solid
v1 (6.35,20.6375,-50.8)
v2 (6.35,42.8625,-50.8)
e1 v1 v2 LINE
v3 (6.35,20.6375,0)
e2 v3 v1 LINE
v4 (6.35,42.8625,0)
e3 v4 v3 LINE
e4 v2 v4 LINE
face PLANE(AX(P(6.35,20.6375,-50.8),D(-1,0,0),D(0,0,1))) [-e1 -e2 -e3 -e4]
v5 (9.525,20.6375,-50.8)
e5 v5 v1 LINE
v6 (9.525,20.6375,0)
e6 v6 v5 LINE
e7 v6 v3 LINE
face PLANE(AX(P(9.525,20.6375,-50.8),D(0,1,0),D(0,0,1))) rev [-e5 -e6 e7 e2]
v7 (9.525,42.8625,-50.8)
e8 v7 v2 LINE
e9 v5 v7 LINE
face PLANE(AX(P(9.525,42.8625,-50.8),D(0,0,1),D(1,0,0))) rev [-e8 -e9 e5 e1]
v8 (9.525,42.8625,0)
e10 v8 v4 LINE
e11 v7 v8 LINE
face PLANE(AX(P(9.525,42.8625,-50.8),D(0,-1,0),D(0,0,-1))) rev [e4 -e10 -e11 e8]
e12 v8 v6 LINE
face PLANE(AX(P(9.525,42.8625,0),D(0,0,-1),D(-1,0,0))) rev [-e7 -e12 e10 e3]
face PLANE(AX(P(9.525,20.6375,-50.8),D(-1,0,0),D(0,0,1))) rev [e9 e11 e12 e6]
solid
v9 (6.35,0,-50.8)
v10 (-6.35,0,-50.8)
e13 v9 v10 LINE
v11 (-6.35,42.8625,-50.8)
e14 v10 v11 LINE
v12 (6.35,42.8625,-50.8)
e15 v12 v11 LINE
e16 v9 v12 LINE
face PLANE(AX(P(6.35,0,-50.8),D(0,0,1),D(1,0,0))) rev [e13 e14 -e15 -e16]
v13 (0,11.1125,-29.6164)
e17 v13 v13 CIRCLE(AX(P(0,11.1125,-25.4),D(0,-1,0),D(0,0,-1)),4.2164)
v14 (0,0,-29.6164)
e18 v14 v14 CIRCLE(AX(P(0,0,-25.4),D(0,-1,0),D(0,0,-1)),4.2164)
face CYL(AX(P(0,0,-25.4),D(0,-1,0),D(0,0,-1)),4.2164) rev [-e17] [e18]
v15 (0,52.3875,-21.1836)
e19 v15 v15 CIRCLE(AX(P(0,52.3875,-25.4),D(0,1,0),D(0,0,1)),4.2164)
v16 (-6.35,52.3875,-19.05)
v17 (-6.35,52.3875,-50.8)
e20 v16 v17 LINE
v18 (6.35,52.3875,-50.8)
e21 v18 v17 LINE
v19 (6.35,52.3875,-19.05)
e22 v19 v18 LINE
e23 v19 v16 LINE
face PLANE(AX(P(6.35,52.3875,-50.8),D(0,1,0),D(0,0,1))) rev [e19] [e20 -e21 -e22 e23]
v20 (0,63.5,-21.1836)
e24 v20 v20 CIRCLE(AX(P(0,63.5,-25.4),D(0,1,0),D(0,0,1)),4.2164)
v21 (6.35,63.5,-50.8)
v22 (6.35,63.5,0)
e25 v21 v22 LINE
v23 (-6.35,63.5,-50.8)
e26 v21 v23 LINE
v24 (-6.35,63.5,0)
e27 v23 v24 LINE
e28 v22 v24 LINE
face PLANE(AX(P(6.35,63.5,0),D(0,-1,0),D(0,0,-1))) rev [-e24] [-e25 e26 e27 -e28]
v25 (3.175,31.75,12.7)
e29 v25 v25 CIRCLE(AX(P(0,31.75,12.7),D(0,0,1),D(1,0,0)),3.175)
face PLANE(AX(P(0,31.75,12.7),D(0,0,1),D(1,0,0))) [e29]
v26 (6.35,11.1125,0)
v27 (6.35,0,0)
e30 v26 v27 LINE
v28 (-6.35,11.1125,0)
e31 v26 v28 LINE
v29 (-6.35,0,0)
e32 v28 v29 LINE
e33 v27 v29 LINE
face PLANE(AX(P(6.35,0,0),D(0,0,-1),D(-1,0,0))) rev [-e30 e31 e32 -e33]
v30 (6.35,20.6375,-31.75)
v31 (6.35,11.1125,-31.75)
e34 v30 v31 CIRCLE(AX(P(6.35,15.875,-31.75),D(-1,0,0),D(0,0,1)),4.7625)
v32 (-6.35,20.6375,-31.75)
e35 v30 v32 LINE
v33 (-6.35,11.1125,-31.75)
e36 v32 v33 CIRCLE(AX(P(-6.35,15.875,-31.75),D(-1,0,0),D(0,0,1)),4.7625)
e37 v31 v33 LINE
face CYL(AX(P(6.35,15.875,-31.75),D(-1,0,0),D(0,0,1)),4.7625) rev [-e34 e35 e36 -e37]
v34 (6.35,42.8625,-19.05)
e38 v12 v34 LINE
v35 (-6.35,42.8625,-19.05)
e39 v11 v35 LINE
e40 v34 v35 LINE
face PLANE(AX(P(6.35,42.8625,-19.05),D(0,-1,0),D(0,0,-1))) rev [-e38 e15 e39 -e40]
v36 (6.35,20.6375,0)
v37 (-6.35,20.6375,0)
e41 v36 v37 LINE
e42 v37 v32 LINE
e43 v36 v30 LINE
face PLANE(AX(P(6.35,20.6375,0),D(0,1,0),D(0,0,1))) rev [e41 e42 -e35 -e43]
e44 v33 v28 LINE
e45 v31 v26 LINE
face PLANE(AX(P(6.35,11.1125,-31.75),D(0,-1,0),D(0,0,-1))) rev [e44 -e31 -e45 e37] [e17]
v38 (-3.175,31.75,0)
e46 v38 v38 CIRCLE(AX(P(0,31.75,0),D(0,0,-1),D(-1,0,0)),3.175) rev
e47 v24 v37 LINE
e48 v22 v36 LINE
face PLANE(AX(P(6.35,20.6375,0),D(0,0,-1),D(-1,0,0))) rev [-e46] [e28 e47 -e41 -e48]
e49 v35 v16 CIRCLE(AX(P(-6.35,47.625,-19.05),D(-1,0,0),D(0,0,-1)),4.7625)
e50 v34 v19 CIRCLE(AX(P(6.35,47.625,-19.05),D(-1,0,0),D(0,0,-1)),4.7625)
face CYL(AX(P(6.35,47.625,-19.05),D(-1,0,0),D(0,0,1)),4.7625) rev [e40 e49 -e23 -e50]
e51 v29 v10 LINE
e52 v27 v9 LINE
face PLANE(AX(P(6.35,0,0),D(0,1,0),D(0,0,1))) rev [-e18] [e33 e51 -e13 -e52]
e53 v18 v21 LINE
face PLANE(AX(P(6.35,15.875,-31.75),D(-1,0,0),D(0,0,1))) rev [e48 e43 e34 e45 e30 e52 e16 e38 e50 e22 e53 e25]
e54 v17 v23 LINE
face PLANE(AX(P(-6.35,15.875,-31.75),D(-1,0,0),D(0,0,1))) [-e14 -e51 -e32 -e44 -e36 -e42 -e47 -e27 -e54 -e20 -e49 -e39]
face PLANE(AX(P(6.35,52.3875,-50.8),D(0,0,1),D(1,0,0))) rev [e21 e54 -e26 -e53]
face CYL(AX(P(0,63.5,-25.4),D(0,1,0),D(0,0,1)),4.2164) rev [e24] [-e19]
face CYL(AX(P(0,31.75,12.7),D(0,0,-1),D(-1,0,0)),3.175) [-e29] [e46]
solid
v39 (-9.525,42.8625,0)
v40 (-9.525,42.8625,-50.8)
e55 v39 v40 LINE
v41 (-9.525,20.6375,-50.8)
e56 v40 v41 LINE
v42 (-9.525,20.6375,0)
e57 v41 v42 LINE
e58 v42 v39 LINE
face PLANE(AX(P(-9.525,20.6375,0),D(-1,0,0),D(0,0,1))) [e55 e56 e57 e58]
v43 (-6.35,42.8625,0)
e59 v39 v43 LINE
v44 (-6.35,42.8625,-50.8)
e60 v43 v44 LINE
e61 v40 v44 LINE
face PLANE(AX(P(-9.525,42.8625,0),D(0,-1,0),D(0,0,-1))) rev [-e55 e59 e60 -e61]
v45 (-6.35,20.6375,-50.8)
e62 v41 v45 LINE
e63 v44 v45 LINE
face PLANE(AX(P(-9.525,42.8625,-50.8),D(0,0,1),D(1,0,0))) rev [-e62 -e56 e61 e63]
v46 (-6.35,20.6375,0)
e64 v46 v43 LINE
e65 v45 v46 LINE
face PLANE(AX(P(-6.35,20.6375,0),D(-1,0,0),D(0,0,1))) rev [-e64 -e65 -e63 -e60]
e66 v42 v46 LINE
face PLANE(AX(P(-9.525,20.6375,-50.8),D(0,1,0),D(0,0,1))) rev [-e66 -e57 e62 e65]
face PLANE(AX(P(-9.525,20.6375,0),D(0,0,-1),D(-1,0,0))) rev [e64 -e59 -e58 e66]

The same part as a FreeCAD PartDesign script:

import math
import FreeCAD as App
import Part
import Sketcher

V = App.Vector
Q = App.Units.Quantity


def add_polygon(sketch, points):
    """Adds a closed chain of lines whose ends are joined by coincident constraints."""
    first, n = sketch.GeometryCount, len(points)
    for a, b in zip(points, points[1:] + points[:1]):
        sketch.addGeometry(Part.LineSegment(App.Vector(*a, 0), App.Vector(*b, 0)), False)
    for i in range(n):
        sketch.addConstraint(Sketcher.Constraint("Coincident", first + i, 2, first + (i + 1) % n, 1))

doc = App.newDocument("Part")
body = doc.addObject("PartDesign::Body", "Body")

# Sketch on YZ plane
sketch1 = doc.addObject("Sketcher::SketchObject", "Sketch")
body.addObject(sketch1)
sketch1.AttachmentSupport = (doc.YZ_Plane, [""])
sketch1.MapMode = "FlatFace"
sketch1.addGeometry([
    Part.LineSegment(V(52.4, -19.1, 0), V(52.4, -50.8, 0)),  # 0
    Part.LineSegment(V(52.4, -50.8, 0), V(63.5, -50.8, 0)),  # 1
    Part.LineSegment(V(63.5, -50.8, 0), V(63.5, 0, 0)),  # 2
    Part.LineSegment(V(63.5, 0, 0), V(20.6, 0, 0)),  # 3
    Part.LineSegment(V(20.6, 0, 0), V(20.6, -31.8, 0)),  # 4
    Part.ArcOfCircle(Part.Circle(V(15.9, -31.8, 0), V(0, 0, 1), 4.8), math.radians(180), math.radians(360)),  # 5
    Part.LineSegment(V(11.1, -31.8, 0), V(11.1, 0, 0)),  # 6
    Part.LineSegment(V(11.1, 0, 0), V(0, 0, 0)),  # 7
    Part.LineSegment(V(0, 0, 0), V(0, -50.8, 0)),  # 8
    Part.LineSegment(V(0, -50.8, 0), V(42.9, -50.8, 0)),  # 9
    Part.LineSegment(V(42.9, -50.8, 0), V(42.9, -19.1, 0)),  # 10
    Part.ArcOfCircle(Part.Circle(V(47.6, -19.1, 0), V(0, 0, 1), 4.8), math.radians(0), math.radians(180)),  # 11
], False)
sketch1.addConstraint([
    Sketcher.Constraint("Coincident", 0, 2, 1, 1),
    Sketcher.Constraint("Coincident", 1, 2, 2, 1),
    Sketcher.Constraint("Coincident", 2, 2, 3, 1),
    Sketcher.Constraint("Coincident", 3, 2, 4, 1),
    Sketcher.Constraint("Tangent", 4, 2, 5, 2),
    Sketcher.Constraint("Tangent", 5, 1, 6, 1),
    Sketcher.Constraint("Coincident", 6, 2, 7, 1),
    Sketcher.Constraint("Coincident", 7, 2, 8, 1),
    Sketcher.Constraint("Coincident", 8, 2, 9, 1),
    Sketcher.Constraint("Coincident", 9, 2, 10, 1),
    Sketcher.Constraint("Tangent", 10, 2, 11, 2),
    Sketcher.Constraint("Tangent", 11, 1, 0, 1),
    Sketcher.Constraint("Vertical", 0),
    Sketcher.Constraint("Horizontal", 1),
    Sketcher.Constraint("Vertical", 2),
    Sketcher.Constraint("Horizontal", 3),
    Sketcher.Constraint("Vertical", 4),
    Sketcher.Constraint("Vertical", 6),
    Sketcher.Constraint("Horizontal", 7),
    Sketcher.Constraint("Vertical", 8),
    Sketcher.Constraint("Horizontal", 9),
    Sketcher.Constraint("Vertical", 10),
    Sketcher.Constraint("Coincident", 7, 2, -1, 1),
    Sketcher.Constraint("Equal", 5, 11),
    Sketcher.Constraint("PointOnObject", 2, 2, -1),
    Sketcher.Constraint("Horizontal", 1, 2, 8, 2),
    Sketcher.Constraint("Equal", 1, 7),
    Sketcher.Constraint("Equal", 0, 4),
    Sketcher.Constraint("DistanceY", 2, 1, 2, 2, Q("2 in")),
    Sketcher.Constraint("Radius", 5, Q("0.1875 in")),
    Sketcher.Constraint("DistanceY", 0, 2, 0, 1, Q("1.25 in")),
    Sketcher.Constraint("DistanceX", -1, 1, 1, 2, Q("2.5 in")),
    Sketcher.Constraint("DistanceX", 1, 1, 1, 2, Q("0.4375 in")),
])
pad1 = doc.addObject("PartDesign::Pad", "Pad")
body.addObject(pad1)
pad1.Profile = sketch1
pad1.Length = Q("0.5 in")
pad1.Midplane = True

# Sketch on YZ plane
sketch2 = doc.addObject("Sketcher::SketchObject", "Sketch001")
body.addObject(sketch2)
sketch2.AttachmentSupport = (doc.YZ_Plane, [""])
sketch2.MapMode = "FlatFace"
add_polygon(sketch2, [(52.4, -25.4), (63.5, -25.4), (63.5, -21.2), (52.4, -21.2)])  # lines 0-3
sketch2.addGeometry(Part.LineSegment(V(63.5, -25.4, 0), V(52.4, -25.4, 0)), True)  # axis
sketch2.addConstraint([
    Sketcher.Constraint("Horizontal", 0),
    Sketcher.Constraint("Vertical", 1),
    Sketcher.Constraint("Horizontal", 2),
    Sketcher.Constraint("Vertical", 3),
    Sketcher.Constraint("Horizontal", 4),
    Sketcher.Constraint("Coincident", 4, 1, 0, 2),
    Sketcher.Constraint("Vertical", 2, 2, 4, 2),
    Sketcher.Constraint("DistanceY", 0, 2, -1, 1, Q("1 in")),
    Sketcher.Constraint("DistanceX", -1, 1, 0, 2, Q("2.5 in")),
    Sketcher.Constraint("DistanceX", 0, 1, 0, 2, Q("0.4375 in")),
    Sketcher.Constraint("DistanceY", 1, 1, 1, 2, Q("0.166 in")),
])
groove = doc.addObject("PartDesign::Groove", "Groove")
body.addObject(groove)
groove.Profile = sketch2
groove.ReferenceAxis = (sketch2, ["Axis0"])
groove.Angle = 360

# Sketch on YZ plane
sketch3 = doc.addObject("Sketcher::SketchObject", "Sketch002")
body.addObject(sketch3)
sketch3.AttachmentSupport = (doc.YZ_Plane, [""])
sketch3.MapMode = "FlatFace"
add_polygon(sketch3, [(11.1, -25.4), (0, -25.4), (0, -29.6), (11.1, -29.6)])  # lines 0-3
sketch3.addGeometry(Part.LineSegment(V(0, -25.4, 0), V(11.1, -25.4, 0)), True)  # axis
sketch3.addConstraint([
    Sketcher.Constraint("Horizontal", 0),
    Sketcher.Constraint("Vertical", 1),
    Sketcher.Constraint("Horizontal", 2),
    Sketcher.Constraint("Vertical", 3),
    Sketcher.Constraint("Horizontal", 4),
    Sketcher.Constraint("Coincident", 4, 1, 0, 2),
    Sketcher.Constraint("PointOnObject", 0, 2, -2),
    Sketcher.Constraint("Vertical", 2, 2, 4, 2),
    Sketcher.Constraint("DistanceY", 0, 2, -1, 1, Q("1 in")),
    Sketcher.Constraint("DistanceX", 0, 2, 0, 1, Q("0.4375 in")),
    Sketcher.Constraint("DistanceY", 1, 2, 1, 1, Q("0.166 in")),
])
groove2 = doc.addObject("PartDesign::Groove", "Groove001")
body.addObject(groove2)
groove2.Profile = sketch3
groove2.ReferenceAxis = (sketch3, ["Axis0"])
groove2.Angle = 360

# Sketch on XY plane
sketch4 = doc.addObject("Sketcher::SketchObject", "Sketch003")
body.addObject(sketch4)
sketch4.AttachmentSupport = (doc.XY_Plane, [""])
sketch4.MapMode = "FlatFace"
sketch4.addGeometry(Part.Circle(V(0, 31.8, 0), V(0, 0, 1), 3.2), False)
sketch4.addConstraint([
    Sketcher.Constraint("PointOnObject", 0, 3, -2),
    Sketcher.Constraint("Diameter", 0, Q("0.25 in")),
    Sketcher.Constraint("DistanceY", -1, 1, 0, 3, Q("1.25 in")),
])
pad2 = doc.addObject("PartDesign::Pad", "Pad001")
body.addObject(pad2)
pad2.Profile = sketch4
pad2.Length = Q("0.5 in")
body2 = doc.addObject("PartDesign::Body", "Body001")

# Sketch on YZ plane
sketch5 = doc.addObject("Sketcher::SketchObject", "Sketch004")
body2.addObject(sketch5)
sketch5.AttachmentSupport = (doc.getObject("YZ_Plane001"), [""])
sketch5.MapMode = "FlatFace"
sketch5.AttachmentOffset = App.Placement(V(0, 0, 0.25 * 25.4), App.Rotation())
add_polygon(sketch5, [(43, 0), (21, 0), (21, -51), (43, -51)])  # lines 0-3
sketch5.addConstraint([
    Sketcher.Constraint("Horizontal", 0),
    Sketcher.Constraint("Vertical", 1),
    Sketcher.Constraint("Horizontal", 2),
    Sketcher.Constraint("Vertical", 3),
    Sketcher.Constraint("PointOnObject", 0, 2, -1),
    Sketcher.Constraint("DistanceY", 1, 2, 1, 1, Q("2 in")),
    Sketcher.Constraint("DistanceX", 0, 2, 0, 1, Q("0.875 in")),
    Sketcher.Constraint("DistanceX", -1, 1, 0, 2, Q("0.8125 in")),
])
pad3 = doc.addObject("PartDesign::Pad", "Pad002")
body2.addObject(pad3)
pad3.Profile = sketch5
pad3.Length = Q("0.125 in")
body3 = doc.addObject("PartDesign::Body", "Body002")

# Sketch on YZ plane
sketch6 = doc.addObject("Sketcher::SketchObject", "Sketch005")
body3.addObject(sketch6)
sketch6.AttachmentSupport = (doc.getObject("YZ_Plane002"), [""])
sketch6.MapMode = "FlatFace"
sketch6.AttachmentOffset = App.Placement(V(0, 0, -0.25 * 25.4), App.Rotation())
add_polygon(sketch6, [(43, -51), (21, -51), (21, 0), (43, 0)])  # lines 0-3
sketch6.addConstraint([
    Sketcher.Constraint("Horizontal", 0),
    Sketcher.Constraint("Vertical", 1),
    Sketcher.Constraint("Horizontal", 2),
    Sketcher.Constraint("Vertical", 3),
    Sketcher.Constraint("PointOnObject", 1, 2, -1),
    Sketcher.Constraint("DistanceY", 1, 1, 1, 2, Q("2 in")),
    Sketcher.Constraint("DistanceX", 0, 2, 0, 1, Q("0.875 in")),
    Sketcher.Constraint("DistanceX", -1, 1, 0, 2, Q("0.8125 in")),
])
pad4 = doc.addObject("PartDesign::Pad", "Pad003")
body3.addObject(pad4)
pad4.Profile = sketch6
pad4.Length = Q("0.125 in")
pad4.Reversed = True

doc.recompute()
